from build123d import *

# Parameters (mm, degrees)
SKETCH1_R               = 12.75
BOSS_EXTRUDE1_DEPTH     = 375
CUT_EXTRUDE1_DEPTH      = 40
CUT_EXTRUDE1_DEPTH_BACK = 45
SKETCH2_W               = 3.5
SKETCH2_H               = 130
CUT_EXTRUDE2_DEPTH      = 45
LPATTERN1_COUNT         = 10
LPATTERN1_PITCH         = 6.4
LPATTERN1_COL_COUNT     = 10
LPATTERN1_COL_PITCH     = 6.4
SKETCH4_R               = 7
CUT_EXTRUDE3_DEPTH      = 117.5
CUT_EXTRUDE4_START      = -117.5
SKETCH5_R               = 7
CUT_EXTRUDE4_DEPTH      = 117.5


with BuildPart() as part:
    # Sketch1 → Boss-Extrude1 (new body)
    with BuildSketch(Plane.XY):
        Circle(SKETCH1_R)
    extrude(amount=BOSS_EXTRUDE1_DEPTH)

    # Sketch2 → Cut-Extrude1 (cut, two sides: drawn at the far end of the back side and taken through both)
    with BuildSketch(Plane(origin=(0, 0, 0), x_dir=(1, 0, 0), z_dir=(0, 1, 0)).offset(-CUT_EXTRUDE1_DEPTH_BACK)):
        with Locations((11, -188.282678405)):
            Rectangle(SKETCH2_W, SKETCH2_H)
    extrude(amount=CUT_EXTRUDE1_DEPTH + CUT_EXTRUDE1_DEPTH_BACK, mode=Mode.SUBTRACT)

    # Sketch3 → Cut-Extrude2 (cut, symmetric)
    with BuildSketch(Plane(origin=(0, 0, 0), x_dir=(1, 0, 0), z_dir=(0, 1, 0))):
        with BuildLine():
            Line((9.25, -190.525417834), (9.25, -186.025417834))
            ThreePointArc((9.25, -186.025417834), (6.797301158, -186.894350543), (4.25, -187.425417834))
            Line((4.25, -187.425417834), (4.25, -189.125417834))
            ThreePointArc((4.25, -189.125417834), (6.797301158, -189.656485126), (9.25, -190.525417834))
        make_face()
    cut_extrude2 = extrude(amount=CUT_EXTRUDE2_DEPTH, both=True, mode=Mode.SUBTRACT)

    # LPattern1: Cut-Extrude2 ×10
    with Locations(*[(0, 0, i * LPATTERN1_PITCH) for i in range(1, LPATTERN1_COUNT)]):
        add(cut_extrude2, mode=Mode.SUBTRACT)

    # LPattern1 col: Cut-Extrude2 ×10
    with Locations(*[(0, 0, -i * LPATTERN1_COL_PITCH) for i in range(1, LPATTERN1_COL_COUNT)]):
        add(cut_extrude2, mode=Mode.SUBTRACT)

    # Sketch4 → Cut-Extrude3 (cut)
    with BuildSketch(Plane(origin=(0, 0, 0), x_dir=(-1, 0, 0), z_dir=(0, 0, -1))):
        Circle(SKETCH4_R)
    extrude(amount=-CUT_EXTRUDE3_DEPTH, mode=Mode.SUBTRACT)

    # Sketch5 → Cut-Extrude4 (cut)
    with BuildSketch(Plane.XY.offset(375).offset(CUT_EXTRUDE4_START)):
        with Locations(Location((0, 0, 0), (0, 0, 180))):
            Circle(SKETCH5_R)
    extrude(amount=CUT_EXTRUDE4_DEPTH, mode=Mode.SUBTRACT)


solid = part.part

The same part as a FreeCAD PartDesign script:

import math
import FreeCAD as App
import Part
import Sketcher

V = App.Vector
Q = App.Units.Quantity

doc = App.newDocument("Part")
body = doc.addObject("PartDesign::Body", "Body")

sketch1 = doc.addObject("Sketcher::SketchObject", "Sketch")
body.addObject(sketch1)
sketch1.AttachmentSupport = (doc.XY_Plane, [""])
sketch1.MapMode = "FlatFace"
sketch1.addGeometry(Part.Circle(V(0, 0, 0), V(0, 0, 1), 13), False)
sketch1.addConstraint(Sketcher.Constraint("Coincident", 0, 3, -1, 1))
sketch1.addConstraint(Sketcher.Constraint("Diameter", 0, Q("25.5 mm")))
pad1 = doc.addObject("PartDesign::Pad", "Pad")
body.addObject(pad1)
pad1.Profile = sketch1
pad1.Length = 375

sketch2 = doc.addObject("Sketcher::SketchObject", "Sketch001")
body.addObject(sketch2)
sketch2.AttachmentSupport = (doc.XZ_Plane, [""])
sketch2.MapMode = "FlatFace"
sketch2.addGeometry(Part.LineSegment(V(9.2, 123.3, 0), V(9.2, 253.3, 0)), False)
sketch2.addGeometry(Part.LineSegment(V(9.2, 253.3, 0), V(12.8, 253.3, 0)), False)
sketch2.addGeometry(Part.LineSegment(V(12.8, 253.3, 0), V(12.8, 123.3, 0)), False)
sketch2.addGeometry(Part.LineSegment(V(12.8, 123.3, 0), V(9.2, 123.3, 0)), False)
sketch2.addConstraint(Sketcher.Constraint("Coincident", 0, 2, 1, 1))
sketch2.addConstraint(Sketcher.Constraint("Coincident", 1, 2, 2, 1))
sketch2.addConstraint(Sketcher.Constraint("Coincident", 2, 2, 3, 1))
sketch2.addConstraint(Sketcher.Constraint("Coincident", 3, 2, 0, 1))
sketch2.addConstraint(Sketcher.Constraint("Vertical", 0))
sketch2.addConstraint(Sketcher.Constraint("Horizontal", 1))
sketch2.addConstraint(Sketcher.Constraint("Vertical", 2))
sketch2.addConstraint(Sketcher.Constraint("Horizontal", 3))
sketch2.addConstraint(Sketcher.Constraint("DistanceY", 0, 1, 0, 2, Q("130 mm")))
sketch2.addConstraint(Sketcher.Constraint("DistanceX", 1, 1, 1, 2, Q("3.5 mm")))
sketch2.addConstraint(Sketcher.Constraint("DistanceX", -1, 1, 0, 2, Q("9.25 mm")))
sketch2.addConstraint(Sketcher.Constraint("DistanceY", -1, 1, 0, 2, Q("253.282678 mm")))
pocket1 = doc.addObject("PartDesign::Pocket", "Pocket")
body.addObject(pocket1)
pocket1.Profile = sketch2
pocket1.Type = "ThroughAll"
pocket1.Midplane = True

sketch3 = doc.addObject("Sketcher::SketchObject", "Sketch002")
body.addObject(sketch3)
sketch3.AttachmentSupport = (doc.XZ_Plane, [""])
sketch3.MapMode = "FlatFace"
sketch3.addGeometry(Part.LineSegment(V(9.2, 190.5, 0), V(9.2, 186, 0)), False)
sketch3.addGeometry(Part.ArcOfCircle(Part.Circle(V(1.6, 168.3, 0), V(0, 0, 1), 19.3), math.radians(66.63), math.radians(82.09)), False)
sketch3.addGeometry(Part.LineSegment(V(4.2, 187.4, 0), V(4.2, 189.1, 0)), False)
sketch3.addGeometry(Part.ArcOfCircle(Part.Circle(V(1.6, 208.2, 0), V(0, 0, 1), 19.3), math.radians(-82.09), math.radians(-66.63)), False)
sketch3.addConstraint(Sketcher.Constraint("Coincident", 0, 2, 1, 1))
sketch3.addConstraint(Sketcher.Constraint("Coincident", 1, 2, 2, 1))
sketch3.addConstraint(Sketcher.Constraint("Coincident", 2, 2, 3, 1))
sketch3.addConstraint(Sketcher.Constraint("Coincident", 3, 2, 0, 1))
sketch3.addConstraint(Sketcher.Constraint("Vertical", 0))
sketch3.addConstraint(Sketcher.Constraint("Vertical", 2))
sketch3.addConstraint(Sketcher.Constraint("Equal", 1, 3))
sketch3.addConstraint(Sketcher.Constraint("Vertical", 1, 3, 3, 3))
sketch3.addConstraint(Sketcher.Constraint("DistanceY", 0, 2, 0, 1, Q("4.5 mm")))
sketch3.addConstraint(Sketcher.Constraint("DistanceY", 2, 1, 2, 2, Q("1.7 mm")))
sketch3.addConstraint(Sketcher.Constraint("DistanceX", 1, 2, 0, 2, Q("5 mm")))
sketch3.addConstraint(Sketcher.Constraint("DistanceX", -1, 1, 0, 2, Q("9.25 mm")))
sketch3.addConstraint(Sketcher.Constraint("Radius", 1, Q("19.297664 mm")))
sketch3.addConstraint(Sketcher.Constraint("DistanceY", -1, 1, 3, 3, Q("208.239441 mm")))
pocket2 = doc.addObject("PartDesign::Pocket", "Pocket001")
body.addObject(pocket2)
pocket2.Profile = sketch3
pocket2.Length = 90
pocket2.Midplane = True
doc.recompute()

linearpattern = doc.addObject("PartDesign::LinearPattern", "LinearPattern")
body.addObject(linearpattern)
linearpattern.Originals = [pocket2]
linearpattern.Direction = (doc.Z_Axis, [""])
linearpattern.Mode = "offset"
linearpattern.Offset = 6.4
linearpattern.Occurrences = 10
body.Tip = linearpattern
doc.recompute()

linearpattern2 = doc.addObject("PartDesign::LinearPattern", "LinearPattern001")
body.addObject(linearpattern2)
linearpattern2.Originals = [pocket2]
linearpattern2.Direction = (doc.Z_Axis, [""])
linearpattern2.Mode = "offset"
linearpattern2.Offset = 6.4
linearpattern2.Occurrences = 10
linearpattern2.Reversed = True
body.Tip = linearpattern2

sketch4 = doc.addObject("Sketcher::SketchObject", "Sketch003")
body.addObject(sketch4)
sketch4.AttachmentSupport = (doc.XY_Plane, [""])
sketch4.MapMode = "FlatFace"
sketch4.addGeometry(Part.Circle(V(0, 0, 0), V(0, 0, 1), 7), False)
sketch4.addConstraint(Sketcher.Constraint("Coincident", 0, 3, -1, 1))
sketch4.addConstraint(Sketcher.Constraint("Diameter", 0, Q("14 mm")))
pocket3 = doc.addObject("PartDesign::Pocket", "Pocket002")
body.addObject(pocket3)
pocket3.Profile = sketch4
pocket3.Length = 117.5
pocket3.Reversed = True

sketch5 = doc.addObject("Sketcher::SketchObject", "Sketch004")
body.addObject(sketch5)
sketch5.AttachmentSupport = (doc.XY_Plane, [""])
sketch5.MapMode = "FlatFace"
sketch5.AttachmentOffset = App.Placement(V(0, 0, 257.5), App.Rotation())
sketch5.addGeometry(Part.Circle(V(0, 0, 0), V(0, 0, 1), 7), False)
sketch5.addConstraint(Sketcher.Constraint("Coincident", 0, 3, -1, 1))
sketch5.addConstraint(Sketcher.Constraint("Diameter", 0, Q("14 mm")))
pocket4 = doc.addObject("PartDesign::Pocket", "Pocket003")
body.addObject(pocket4)
pocket4.Profile = sketch5
pocket4.Length = 117.5
pocket4.Reversed = True

doc.recompute()
